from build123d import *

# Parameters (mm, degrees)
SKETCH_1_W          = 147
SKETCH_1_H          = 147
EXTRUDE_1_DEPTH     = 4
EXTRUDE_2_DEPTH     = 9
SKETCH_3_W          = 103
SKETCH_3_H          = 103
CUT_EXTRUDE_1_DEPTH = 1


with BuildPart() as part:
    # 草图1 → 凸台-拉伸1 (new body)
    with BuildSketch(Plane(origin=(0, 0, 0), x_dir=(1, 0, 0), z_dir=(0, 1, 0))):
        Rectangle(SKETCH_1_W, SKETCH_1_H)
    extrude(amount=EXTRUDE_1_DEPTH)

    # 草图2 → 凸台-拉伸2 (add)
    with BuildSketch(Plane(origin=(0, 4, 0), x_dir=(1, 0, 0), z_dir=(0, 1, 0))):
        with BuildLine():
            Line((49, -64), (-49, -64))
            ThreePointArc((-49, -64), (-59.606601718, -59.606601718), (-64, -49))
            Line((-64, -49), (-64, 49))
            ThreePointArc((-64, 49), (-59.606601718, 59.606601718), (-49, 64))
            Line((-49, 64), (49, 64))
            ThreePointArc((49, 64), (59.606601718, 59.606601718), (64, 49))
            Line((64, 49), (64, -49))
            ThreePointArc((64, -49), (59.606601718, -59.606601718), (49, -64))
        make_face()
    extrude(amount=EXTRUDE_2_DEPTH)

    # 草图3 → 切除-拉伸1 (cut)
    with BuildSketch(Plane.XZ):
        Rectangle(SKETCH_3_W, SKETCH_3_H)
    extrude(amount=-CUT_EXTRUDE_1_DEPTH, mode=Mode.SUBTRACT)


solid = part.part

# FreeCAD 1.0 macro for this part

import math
import FreeCAD as App
import Part
import Sketcher

V = App.Vector
Q = App.Units.Quantity


def add_polygon(sketch, points):
    """Adds a closed chain of lines whose ends are joined by coincident constraints."""
    first, n = sketch.GeometryCount, len(points)
    for a, b in zip(points, points[1:] + points[:1]):
        sketch.addGeometry(Part.LineSegment(App.Vector(*a, 0), App.Vector(*b, 0)), False)
    for i in range(n):
        sketch.addConstraint(Sketcher.Constraint("Coincident", first + i, 2, first + (i + 1) % n, 1))

doc = App.newDocument("Part")
body = doc.addObject("PartDesign::Body", "Body")

sketch1 = doc.addObject("Sketcher::SketchObject", "Sketch")
body.addObject(sketch1)
sketch1.AttachmentSupport = (doc.XZ_Plane, [""])
sketch1.MapMode = "FlatFace"
add_polygon(sketch1, [(-74, -74), (-74, 74), (74, 74), (74, -74)])
sketch1.addConstraint([
    Sketcher.Constraint("Vertical", 0),
    Sketcher.Constraint("Horizontal", 1),
    Sketcher.Constraint("Vertical", 2),
    Sketcher.Constraint("Horizontal", 3),
    Sketcher.Constraint("Symmetric", 0, 2, 2, 2, -1, 1),
    Sketcher.Constraint("Equal", 3, 0),
    Sketcher.Constraint("DistanceX", 1, 1, 1, 2, Q("147 mm")),
])
pad1 = doc.addObject("PartDesign::Pad", "Pad")
body.addObject(pad1)
pad1.Profile = sketch1
pad1.Length = 4
pad1.Reversed = True

sketch2 = doc.addObject("Sketcher::SketchObject", "Sketch001")
body.addObject(sketch2)
sketch2.AttachmentSupport = (doc.XZ_Plane, [""])
sketch2.MapMode = "FlatFace"
sketch2.AttachmentOffset = App.Placement(V(0, 0, -4), App.Rotation())
sketch2.addGeometry([
    Part.LineSegment(V(-49, 64, 0), V(49, 64, 0)),
    Part.ArcOfCircle(Part.Circle(V(49, 49, 0), V(0, 0, 1), 15), math.radians(0), math.radians(90)),
    Part.LineSegment(V(64, 49, 0), V(64, -49, 0)),
    Part.ArcOfCircle(Part.Circle(V(49, -49, 0), V(0, 0, 1), 15), math.radians(-90), math.radians(0)),
    Part.LineSegment(V(49, -64, 0), V(-49, -64, 0)),
    Part.ArcOfCircle(Part.Circle(V(-49, -49, 0), V(0, 0, 1), 15), math.radians(180), math.radians(270)),
    Part.LineSegment(V(-64, -49, 0), V(-64, 49, 0)),
    Part.ArcOfCircle(Part.Circle(V(-49, 49, 0), V(0, 0, 1), 15), math.radians(90), math.radians(180)),
], False)
sketch2.addConstraint([
    Sketcher.Constraint("Tangent", 0, 2, 1, 2),
    Sketcher.Constraint("Tangent", 1, 1, 2, 1),
    Sketcher.Constraint("Tangent", 2, 2, 3, 2),
    Sketcher.Constraint("Tangent", 3, 1, 4, 1),
    Sketcher.Constraint("Tangent", 4, 2, 5, 2),
    Sketcher.Constraint("Tangent", 5, 1, 6, 1),
    Sketcher.Constraint("Tangent", 6, 2, 7, 2),
    Sketcher.Constraint("Tangent", 7, 1, 0, 1),
    Sketcher.Constraint("Horizontal", 0),
    Sketcher.Constraint("Vertical", 2),
    Sketcher.Constraint("Horizontal", 4),
    Sketcher.Constraint("Vertical", 6),
    Sketcher.Constraint("Equal", 1, 3),
    Sketcher.Constraint("Equal", 3, 5),
    Sketcher.Constraint("Equal", 5, 7),
    Sketcher.Constraint("Symmetric", 1, 3, 5, 3, -1, 1),
    Sketcher.Constraint("Equal", 4, 2),
    Sketcher.Constraint("Radius", 1, Q("15 mm")),
    Sketcher.Constraint("DistanceX", 0, 1, 0, 2, Q("98 mm")),
])
pad2 = doc.addObject("PartDesign::Pad", "Pad001")
body.addObject(pad2)
pad2.Profile = sketch2
pad2.Length = 9
pad2.Reversed = True

sketch3 = doc.addObject("Sketcher::SketchObject", "Sketch002")
body.addObject(sketch3)
sketch3.AttachmentSupport = (doc.XZ_Plane, [""])
sketch3.MapMode = "FlatFace"
add_polygon(sketch3, [(-52, 52), (-52, -52), (52, -52), (52, 52)])
sketch3.addConstraint([
    Sketcher.Constraint("Vertical", 0),
    Sketcher.Constraint("Horizontal", 1),
    Sketcher.Constraint("Vertical", 2),
    Sketcher.Constraint("Horizontal", 3),
    Sketcher.Constraint("Symmetric", 0, 2, 2, 2, -1, 1),
    Sketcher.Constraint("Equal", 3, 0),
    Sketcher.Constraint("DistanceX", 1, 1, 1, 2, Q("103 mm")),
])
pocket1 = doc.addObject("PartDesign::Pocket", "Pocket")
body.addObject(pocket1)
pocket1.Profile = sketch3
pocket1.Length = 1

doc.recompute()
